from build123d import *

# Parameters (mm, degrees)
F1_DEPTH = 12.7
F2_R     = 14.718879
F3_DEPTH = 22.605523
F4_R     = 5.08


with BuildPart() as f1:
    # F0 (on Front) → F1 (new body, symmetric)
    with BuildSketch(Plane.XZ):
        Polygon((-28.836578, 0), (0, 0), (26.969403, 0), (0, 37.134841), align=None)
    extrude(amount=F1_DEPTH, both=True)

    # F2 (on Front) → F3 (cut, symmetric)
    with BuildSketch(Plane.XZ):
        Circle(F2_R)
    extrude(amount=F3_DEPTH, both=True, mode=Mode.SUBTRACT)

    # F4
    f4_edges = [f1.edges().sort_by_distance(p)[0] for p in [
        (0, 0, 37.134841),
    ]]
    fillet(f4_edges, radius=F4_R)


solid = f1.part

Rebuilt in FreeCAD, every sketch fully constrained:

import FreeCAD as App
import Part
import Sketcher

V = App.Vector
Q = App.Units.Quantity


def edges_at(feature, points):
    """Names of the edges that pass closest to the given points."""
    edges = feature.Shape.Edges
    near = lambda p: min(range(len(edges)), key=lambda i: edges[i].distToShape(Part.Vertex(*p))[0])
    return sorted({f"Edge{near(p) + 1}" for p in points})


def add_polygon(sketch, points):
    """Adds a closed chain of lines whose ends are joined by coincident constraints."""
    first, n = sketch.GeometryCount, len(points)
    for a, b in zip(points, points[1:] + points[:1]):
        sketch.addGeometry(Part.LineSegment(App.Vector(*a, 0), App.Vector(*b, 0)), False)
    for i in range(n):
        sketch.addConstraint(Sketcher.Constraint("Coincident", first + i, 2, first + (i + 1) % n, 1))

doc = App.newDocument("Part")
body = doc.addObject("PartDesign::Body", "Body")

sketch1 = doc.addObject("Sketcher::SketchObject", "Sketch")
body.addObject(sketch1)
sketch1.AttachmentSupport = (doc.XZ_Plane, [""])
sketch1.MapMode = "FlatFace"
add_polygon(sketch1, [(-28.836578, 0), (26.969403, 0), (0, 37.134841)])
sketch1.addConstraint([
    Sketcher.Constraint("Horizontal", 0),
    Sketcher.Constraint("PointOnObject", 0, 2, -1),
    Sketcher.Constraint("PointOnObject", 1, 2, -2),
    Sketcher.Constraint("DistanceX", 0, 1, 0, 2, 55.805981),
    Sketcher.Constraint("Distance", 2, 47.01643),
    Sketcher.Constraint("DistanceY", -1, 1, 1, 2, 37.134841),
])
pad1 = doc.addObject("PartDesign::Pad", "Pad")
body.addObject(pad1)
pad1.Profile = sketch1
pad1.Length = Q("1 in")
pad1.Midplane = True

sketch2 = doc.addObject("Sketcher::SketchObject", "Sketch001")
body.addObject(sketch2)
sketch2.AttachmentSupport = (doc.XZ_Plane, [""])
sketch2.MapMode = "FlatFace"
sketch2.addGeometry(Part.Circle(V(0, 0, 0), V(0, 0, 1), 14.718879), False)
sketch2.addConstraint([
    Sketcher.Constraint("Coincident", 0, 3, -1, 1),
    Sketcher.Constraint("Diameter", 0, 29.437758),
])
pocket1 = doc.addObject("PartDesign::Pocket", "Pocket")
body.addObject(pocket1)
pocket1.Profile = sketch2
pocket1.Length = 45.211046
pocket1.Midplane = True
doc.recompute()

fillet = doc.addObject("PartDesign::Fillet", "Fillet")
body.addObject(fillet)
fillet.Base = (pocket1, edges_at(pocket1, [(0, 0, 37.135)]))
fillet.Radius = Q("0.2 in")

doc.recompute()
